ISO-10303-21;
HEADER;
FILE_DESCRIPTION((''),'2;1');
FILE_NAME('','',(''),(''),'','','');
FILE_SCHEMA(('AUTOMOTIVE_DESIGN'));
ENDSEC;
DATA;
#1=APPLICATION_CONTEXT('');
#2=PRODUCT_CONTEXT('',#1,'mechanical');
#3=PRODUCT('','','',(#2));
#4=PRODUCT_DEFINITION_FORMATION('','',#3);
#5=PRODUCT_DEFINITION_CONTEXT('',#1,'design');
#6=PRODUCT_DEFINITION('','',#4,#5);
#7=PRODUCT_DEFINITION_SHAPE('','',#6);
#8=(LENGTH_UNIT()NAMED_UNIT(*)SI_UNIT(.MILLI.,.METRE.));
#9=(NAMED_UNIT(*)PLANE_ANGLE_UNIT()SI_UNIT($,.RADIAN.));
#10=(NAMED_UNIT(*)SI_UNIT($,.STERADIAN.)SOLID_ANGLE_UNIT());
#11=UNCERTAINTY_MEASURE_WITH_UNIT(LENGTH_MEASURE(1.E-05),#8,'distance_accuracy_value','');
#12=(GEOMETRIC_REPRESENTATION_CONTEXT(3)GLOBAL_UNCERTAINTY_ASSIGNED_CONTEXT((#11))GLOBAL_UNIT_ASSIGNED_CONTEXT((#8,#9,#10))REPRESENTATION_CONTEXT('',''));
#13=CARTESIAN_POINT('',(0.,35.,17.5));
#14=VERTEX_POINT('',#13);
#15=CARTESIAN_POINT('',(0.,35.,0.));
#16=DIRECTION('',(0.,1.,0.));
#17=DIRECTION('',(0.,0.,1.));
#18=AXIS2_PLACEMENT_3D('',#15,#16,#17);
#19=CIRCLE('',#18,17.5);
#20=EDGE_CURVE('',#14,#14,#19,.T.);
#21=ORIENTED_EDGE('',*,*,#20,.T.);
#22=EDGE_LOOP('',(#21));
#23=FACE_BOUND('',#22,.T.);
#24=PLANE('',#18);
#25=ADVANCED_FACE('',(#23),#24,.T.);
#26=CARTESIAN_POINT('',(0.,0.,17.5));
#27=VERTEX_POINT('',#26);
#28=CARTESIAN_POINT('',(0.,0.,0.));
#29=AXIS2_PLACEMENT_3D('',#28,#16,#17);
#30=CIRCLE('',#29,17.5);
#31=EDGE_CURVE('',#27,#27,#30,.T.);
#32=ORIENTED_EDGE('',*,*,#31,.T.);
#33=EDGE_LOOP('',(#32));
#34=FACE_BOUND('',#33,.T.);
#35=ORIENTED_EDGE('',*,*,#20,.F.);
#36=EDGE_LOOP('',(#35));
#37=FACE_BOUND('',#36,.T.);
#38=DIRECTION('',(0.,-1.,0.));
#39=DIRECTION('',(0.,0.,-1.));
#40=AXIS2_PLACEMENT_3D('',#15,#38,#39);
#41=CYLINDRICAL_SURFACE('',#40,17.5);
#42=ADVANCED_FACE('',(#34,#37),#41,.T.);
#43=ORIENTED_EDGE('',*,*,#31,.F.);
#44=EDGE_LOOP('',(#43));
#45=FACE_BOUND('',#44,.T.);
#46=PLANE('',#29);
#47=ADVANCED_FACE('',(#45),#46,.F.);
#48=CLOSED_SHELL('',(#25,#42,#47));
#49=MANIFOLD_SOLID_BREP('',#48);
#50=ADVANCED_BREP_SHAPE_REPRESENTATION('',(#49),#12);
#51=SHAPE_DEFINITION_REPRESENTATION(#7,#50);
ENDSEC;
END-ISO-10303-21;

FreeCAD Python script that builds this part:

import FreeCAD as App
import Part
import Sketcher
from FreeCAD import Vector
Q = App.Units.Quantity

doc = App.newDocument("Part")
body = doc.addObject("PartDesign::Body", "Body")

# Sketch on XZ plane
sketch1 = body.newObject("Sketcher::SketchObject", "Sketch")
sketch1.AttachmentSupport = (doc.getObject("XZ_Plane"), [""])
sketch1.MapMode = "FlatFace"
sketch1.addGeometry(Part.Circle(Vector(0, 0, 0), Vector(0, 0, 1), 18), False)
sketch1.addConstraint(Sketcher.Constraint("Coincident", 0, 3, -1, 1))
sketch1.addConstraint(Sketcher.Constraint("Diameter", 0, Q("35 mm")))
pad1 = body.newObject("PartDesign::Pad", "Pad")
pad1.Profile = sketch1
pad1.Length = 35
pad1.Reversed = True

doc.recompute()
